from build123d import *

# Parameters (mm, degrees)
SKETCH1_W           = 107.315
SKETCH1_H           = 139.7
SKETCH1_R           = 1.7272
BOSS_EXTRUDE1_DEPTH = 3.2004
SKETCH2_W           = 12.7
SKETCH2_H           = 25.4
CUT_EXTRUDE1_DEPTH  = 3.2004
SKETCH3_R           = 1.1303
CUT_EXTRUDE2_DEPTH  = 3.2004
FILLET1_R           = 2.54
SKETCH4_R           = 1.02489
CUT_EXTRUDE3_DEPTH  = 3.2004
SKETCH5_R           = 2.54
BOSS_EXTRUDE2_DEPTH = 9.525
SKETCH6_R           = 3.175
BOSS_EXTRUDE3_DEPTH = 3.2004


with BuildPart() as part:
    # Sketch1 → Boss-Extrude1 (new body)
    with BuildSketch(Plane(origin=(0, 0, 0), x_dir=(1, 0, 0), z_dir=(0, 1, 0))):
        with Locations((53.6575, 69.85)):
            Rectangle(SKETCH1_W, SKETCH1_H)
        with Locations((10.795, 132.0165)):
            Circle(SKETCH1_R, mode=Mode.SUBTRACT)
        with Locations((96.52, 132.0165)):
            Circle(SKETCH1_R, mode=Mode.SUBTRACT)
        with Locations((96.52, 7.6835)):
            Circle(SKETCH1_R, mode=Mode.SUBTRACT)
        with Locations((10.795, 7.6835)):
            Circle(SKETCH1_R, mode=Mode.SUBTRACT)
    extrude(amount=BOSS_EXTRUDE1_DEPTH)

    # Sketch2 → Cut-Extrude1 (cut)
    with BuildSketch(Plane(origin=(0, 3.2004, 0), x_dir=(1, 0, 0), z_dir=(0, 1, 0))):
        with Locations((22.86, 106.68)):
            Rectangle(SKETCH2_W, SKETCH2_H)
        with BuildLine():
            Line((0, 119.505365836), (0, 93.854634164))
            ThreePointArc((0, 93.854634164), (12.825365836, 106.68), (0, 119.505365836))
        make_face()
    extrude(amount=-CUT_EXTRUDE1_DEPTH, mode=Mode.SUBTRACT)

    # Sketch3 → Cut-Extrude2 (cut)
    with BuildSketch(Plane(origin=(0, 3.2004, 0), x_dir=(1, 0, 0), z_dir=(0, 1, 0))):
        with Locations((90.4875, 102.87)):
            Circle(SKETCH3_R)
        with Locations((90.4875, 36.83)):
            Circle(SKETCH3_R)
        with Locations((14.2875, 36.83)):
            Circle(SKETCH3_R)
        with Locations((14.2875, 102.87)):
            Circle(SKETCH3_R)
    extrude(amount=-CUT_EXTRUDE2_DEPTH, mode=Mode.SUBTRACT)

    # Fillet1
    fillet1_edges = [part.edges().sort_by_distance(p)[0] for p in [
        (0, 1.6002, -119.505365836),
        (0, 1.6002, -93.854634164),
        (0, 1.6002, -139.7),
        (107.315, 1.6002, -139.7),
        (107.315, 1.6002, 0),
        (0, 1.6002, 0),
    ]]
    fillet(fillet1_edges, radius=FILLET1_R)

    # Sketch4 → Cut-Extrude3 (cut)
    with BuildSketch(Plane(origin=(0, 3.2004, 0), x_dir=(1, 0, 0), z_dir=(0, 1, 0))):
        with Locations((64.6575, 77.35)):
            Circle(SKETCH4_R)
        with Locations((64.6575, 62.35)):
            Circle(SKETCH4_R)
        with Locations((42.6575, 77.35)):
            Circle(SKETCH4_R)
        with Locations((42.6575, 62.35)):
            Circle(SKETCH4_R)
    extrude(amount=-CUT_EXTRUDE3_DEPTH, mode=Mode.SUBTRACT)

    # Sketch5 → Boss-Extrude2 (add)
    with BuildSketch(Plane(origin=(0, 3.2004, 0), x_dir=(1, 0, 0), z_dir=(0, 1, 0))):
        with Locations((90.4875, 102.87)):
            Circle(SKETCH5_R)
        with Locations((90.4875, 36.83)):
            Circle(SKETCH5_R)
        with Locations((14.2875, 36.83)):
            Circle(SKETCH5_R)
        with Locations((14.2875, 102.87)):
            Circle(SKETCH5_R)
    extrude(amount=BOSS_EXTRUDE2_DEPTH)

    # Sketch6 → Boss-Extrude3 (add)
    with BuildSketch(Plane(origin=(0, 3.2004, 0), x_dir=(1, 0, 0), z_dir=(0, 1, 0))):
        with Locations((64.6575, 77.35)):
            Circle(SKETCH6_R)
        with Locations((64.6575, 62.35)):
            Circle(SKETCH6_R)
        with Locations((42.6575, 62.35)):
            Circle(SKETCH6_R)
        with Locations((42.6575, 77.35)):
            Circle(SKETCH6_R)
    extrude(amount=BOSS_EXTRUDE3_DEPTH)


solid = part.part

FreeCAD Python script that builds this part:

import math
import FreeCAD as App
import Part
import Sketcher
Q = App.Units.Quantity


def edges_at(feature, points):
    """Names of the edges that pass closest to the given points."""
    edges = feature.Shape.Edges
    near = lambda p: min(range(len(edges)), key=lambda i: edges[i].distToShape(Part.Vertex(*p))[0])
    return sorted({f"Edge{near(p) + 1}" for p in points})


def add_polygon(sketch, points):
    """Adds a closed chain of lines whose ends are joined by coincident constraints."""
    first, n = sketch.GeometryCount, len(points)
    for a, b in zip(points, points[1:] + points[:1]):
        sketch.addGeometry(Part.LineSegment(App.Vector(*a, 0), App.Vector(*b, 0)), False)
    for i in range(n):
        sketch.addConstraint(Sketcher.Constraint("Coincident", first + i, 2, first + (i + 1) % n, 1))

doc = App.newDocument("Part")
body = doc.addObject("PartDesign::Body", "Body")

sketch1 = body.newObject("Sketcher::SketchObject", "Sketch")
sketch1.AttachmentSupport = (doc.getObject("XZ_Plane"), [""])
sketch1.MapMode = "FlatFace"
add_polygon(sketch1, [(0, -139.7), (0, 0), (107.3, 0), (107.3, -139.7)])
sketch1.addGeometry(Part.Circle(App.Vector(10.8, -7.7, 0), App.Vector(0, 0, 1), 1.7), False)
sketch1.addGeometry(Part.Circle(App.Vector(96.5, -7.7, 0), App.Vector(0, 0, 1), 1.7), False)
sketch1.addGeometry(Part.Circle(App.Vector(10.8, -132, 0), App.Vector(0, 0, 1), 1.7), False)
sketch1.addGeometry(Part.Circle(App.Vector(96.5, -132, 0), App.Vector(0, 0, 1), 1.7), False)
sketch1.addConstraint([
    Sketcher.Constraint("Vertical", 0),
    Sketcher.Constraint("Horizontal", 1),
    Sketcher.Constraint("Vertical", 2),
    Sketcher.Constraint("Horizontal", 3),
    Sketcher.Constraint("Coincident", 0, 2, -1, 1),
    Sketcher.Constraint("Equal", 4, 5),
    Sketcher.Constraint("Equal", 5, 6),
    Sketcher.Constraint("Equal", 6, 7),
    Sketcher.Constraint("Horizontal", 4, 3, 5, 3),
    Sketcher.Constraint("Horizontal", 6, 3, 7, 3),
    Sketcher.Constraint("Vertical", 4, 3, 6, 3),
    Sketcher.Constraint("Vertical", 5, 3, 7, 3),
    Sketcher.Constraint("Diameter", 4, Q("0.136 in")),
    Sketcher.Constraint("DistanceY", 0, 1, 0, 2, Q("5.5 in")),
    Sketcher.Constraint("DistanceX", -1, 1, 5, 3, Q("3.8 in")),
    Sketcher.Constraint("DistanceX", 4, 3, 1, 2, Q("3.8 in")),
    Sketcher.Constraint("DistanceX", 1, 1, 1, 2, Q("4.225 in")),
    Sketcher.Constraint("DistanceY", 6, 3, 4, 3, Q("4.895 in")),
    Sketcher.Constraint("DistanceY", 4, 3, -1, 1, Q("0.3025 in")),
])
pad1 = body.newObject("PartDesign::Pad", "Pad")
pad1.Profile = sketch1
pad1.Length = Q("0.126 in")
pad1.Reversed = True

sketch2 = body.newObject("Sketcher::SketchObject", "Sketch001")
sketch2.AttachmentSupport = (doc.getObject("XZ_Plane"), [""])
sketch2.MapMode = "FlatFace"
sketch2.AttachmentOffset = App.Placement(App.Vector(0, 0, -0.126 * 25.4), App.Rotation())
add_polygon(sketch2, [(17, -119), (17, -94), (29, -94), (29, -119)])
sketch2.addGeometry(Part.LineSegment(App.Vector(0, -120, 0), App.Vector(0, -94, 0)), False)
sketch2.addGeometry(Part.ArcOfCircle(Part.Circle(App.Vector(0, -107, 0), App.Vector(0, 0, 1), 13), math.radians(-90), math.radians(90)), False)
sketch2.addConstraint([
    Sketcher.Constraint("Coincident", 4, 1, 5, 1),
    Sketcher.Constraint("Coincident", 5, 2, 4, 2),
    Sketcher.Constraint("Vertical", 0),
    Sketcher.Constraint("Horizontal", 1),
    Sketcher.Constraint("Vertical", 2),
    Sketcher.Constraint("Horizontal", 3),
    Sketcher.Constraint("Vertical", 4),
    Sketcher.Constraint("PointOnObject", 5, 3, -2),
    Sketcher.Constraint("PointOnObject", 4, 1, -2),
    Sketcher.Constraint("DistanceY", 0, 1, 0, 2, Q("1 in")),
    Sketcher.Constraint("DistanceX", 1, 1, 1, 2, Q("0.5 in")),
    Sketcher.Constraint("DistanceY", 5, 3, -1, 1, Q("4.2 in")),
    Sketcher.Constraint("DistanceY", 0, 2, -1, 1, Q("3.7 in")),
    Sketcher.Constraint("DistanceX", -1, 1, 0, 2, Q("0.65 in")),
    Sketcher.Constraint("Radius", 5, 12.825366),
])
pocket1 = body.newObject("PartDesign::Pocket", "Pocket")
pocket1.Profile = sketch2
pocket1.Length = Q("0.126 in")
pocket1.Reversed = True

sketch3 = body.newObject("Sketcher::SketchObject", "Sketch002")
sketch3.AttachmentSupport = (doc.getObject("XZ_Plane"), [""])
sketch3.MapMode = "FlatFace"
sketch3.AttachmentOffset = App.Placement(App.Vector(0, 0, -0.126 * 25.4), App.Rotation())
sketch3.addGeometry([
    Part.Circle(App.Vector(90.5, -102.9, 0), App.Vector(0, 0, 1), 1.1),
    Part.Circle(App.Vector(90.5, -36.8, 0), App.Vector(0, 0, 1), 1.1),
    Part.Circle(App.Vector(14.3, -36.8, 0), App.Vector(0, 0, 1), 1.1),
    Part.Circle(App.Vector(14.3, -102.9, 0), App.Vector(0, 0, 1), 1.1),
], False)
sketch3.addConstraint([
    Sketcher.Constraint("Equal", 0, 1),
    Sketcher.Constraint("Equal", 1, 2),
    Sketcher.Constraint("Equal", 2, 3),
    Sketcher.Constraint("Horizontal", 1, 3, 2, 3),
    Sketcher.Constraint("Horizontal", 0, 3, 3, 3),
    Sketcher.Constraint("Vertical", 0, 3, 1, 3),
    Sketcher.Constraint("Vertical", 2, 3, 3, 3),
    Sketcher.Constraint("Diameter", 0, Q("0.089 in")),
    Sketcher.Constraint("DistanceX", 2, 3, 1, 3, Q("3 in")),
    Sketcher.Constraint("DistanceY", 0, 3, 1, 3, Q("2.6 in")),
    Sketcher.Constraint("DistanceY", 0, 3, -1, 1, Q("4.05 in")),
    Sketcher.Constraint("DistanceX", -1, 1, 0, 3, Q("3.5625 in")),
])
pocket2 = body.newObject("PartDesign::Pocket", "Pocket001")
pocket2.Profile = sketch3
pocket2.Length = Q("0.126 in")
pocket2.Reversed = True
doc.recompute()

fillet = body.newObject("PartDesign::Fillet", "Fillet")
fillet.Base = (pocket2, edges_at(pocket2, [
    (0, 1.6, -119.505),
    (0, 1.6, -93.855),
    (0, 1.6, -139.7),
    (107.315, 1.6, -139.7),
    (107.315, 1.6, 0),
    (0, 1.6, 0),
]))
fillet.Radius = Q("0.1 in")

sketch4 = body.newObject("Sketcher::SketchObject", "Sketch003")
sketch4.AttachmentSupport = (doc.getObject("XZ_Plane"), [""])
sketch4.MapMode = "FlatFace"
sketch4.AttachmentOffset = App.Placement(App.Vector(0, 0, -0.126 * 25.4), App.Rotation())
sketch4.addGeometry([
    Part.Circle(App.Vector(64.7, -77.3, 0), App.Vector(0, 0, 1), 1),
    Part.Circle(App.Vector(64.7, -62.4, 0), App.Vector(0, 0, 1), 1),
    Part.Circle(App.Vector(42.7, -77.3, 0), App.Vector(0, 0, 1), 1),
    Part.Circle(App.Vector(42.7, -62.4, 0), App.Vector(0, 0, 1), 1),
], False)
sketch4.addConstraint([
    Sketcher.Constraint("Equal", 0, 1),
    Sketcher.Constraint("Equal", 1, 2),
    Sketcher.Constraint("Equal", 2, 3),
    Sketcher.Constraint("Horizontal", 0, 3, 2, 3),
    Sketcher.Constraint("Horizontal", 1, 3, 3, 3),
    Sketcher.Constraint("Vertical", 0, 3, 1, 3),
    Sketcher.Constraint("Vertical", 2, 3, 3, 3),
    Sketcher.Constraint("Diameter", 0, Q("0.0807 in")),
    Sketcher.Constraint("DistanceX", -1, 1, 0, 3, 64.6575),
    Sketcher.Constraint("DistanceY", 0, 3, -1, 1, 77.35),
    Sketcher.Constraint("DistanceY", 1, 3, -1, 1, 62.35),
    Sketcher.Constraint("DistanceX", -1, 1, 2, 3, 42.6575),
])
pocket3 = body.newObject("PartDesign::Pocket", "Pocket002")
pocket3.Profile = sketch4
pocket3.Length = Q("0.126 in")
pocket3.Reversed = True

sketch5 = body.newObject("Sketcher::SketchObject", "Sketch004")
sketch5.AttachmentSupport = (doc.getObject("XZ_Plane"), [""])
sketch5.MapMode = "FlatFace"
sketch5.AttachmentOffset = App.Placement(App.Vector(0, 0, -0.126 * 25.4), App.Rotation())
sketch5.addGeometry([
    Part.Circle(App.Vector(90.5, -102.9, 0), App.Vector(0, 0, 1), 2.5),
    Part.Circle(App.Vector(90.5, -36.8, 0), App.Vector(0, 0, 1), 2.5),
    Part.Circle(App.Vector(14.3, -36.8, 0), App.Vector(0, 0, 1), 2.5),
    Part.Circle(App.Vector(14.3, -102.9, 0), App.Vector(0, 0, 1), 2.5),
], False)
sketch5.addConstraint([
    Sketcher.Constraint("Equal", 0, 1),
    Sketcher.Constraint("Equal", 1, 2),
    Sketcher.Constraint("Equal", 2, 3),
    Sketcher.Constraint("Horizontal", 1, 3, 2, 3),
    Sketcher.Constraint("Horizontal", 0, 3, 3, 3),
    Sketcher.Constraint("Vertical", 0, 3, 1, 3),
    Sketcher.Constraint("Vertical", 2, 3, 3, 3),
    Sketcher.Constraint("Diameter", 0, Q("0.2 in")),
    Sketcher.Constraint("DistanceX", 2, 3, 1, 3, Q("3 in")),
    Sketcher.Constraint("DistanceY", 0, 3, 1, 3, Q("2.6 in")),
    Sketcher.Constraint("DistanceY", 0, 3, -1, 1, Q("4.05 in")),
    Sketcher.Constraint("DistanceX", -1, 1, 0, 3, Q("3.5625 in")),
])
pad2 = body.newObject("PartDesign::Pad", "Pad001")
pad2.Profile = sketch5
pad2.Length = Q("0.375 in")
pad2.Reversed = True

sketch6 = body.newObject("Sketcher::SketchObject", "Sketch005")
sketch6.AttachmentSupport = (doc.getObject("XZ_Plane"), [""])
sketch6.MapMode = "FlatFace"
sketch6.AttachmentOffset = App.Placement(App.Vector(0, 0, -0.126 * 25.4), App.Rotation())
sketch6.addGeometry([
    Part.Circle(App.Vector(64.7, -77.3, 0), App.Vector(0, 0, 1), 3.2),
    Part.Circle(App.Vector(64.7, -62.4, 0), App.Vector(0, 0, 1), 3.2),
    Part.Circle(App.Vector(42.7, -62.4, 0), App.Vector(0, 0, 1), 3.2),
    Part.Circle(App.Vector(42.7, -77.3, 0), App.Vector(0, 0, 1), 3.2),
], False)
sketch6.addConstraint([
    Sketcher.Constraint("Equal", 0, 1),
    Sketcher.Constraint("Equal", 1, 2),
    Sketcher.Constraint("Equal", 2, 3),
    Sketcher.Constraint("Horizontal", 1, 3, 2, 3),
    Sketcher.Constraint("Horizontal", 0, 3, 3, 3),
    Sketcher.Constraint("Vertical", 0, 3, 1, 3),
    Sketcher.Constraint("Vertical", 2, 3, 3, 3),
    Sketcher.Constraint("Diameter", 0, Q("0.25 in")),
    Sketcher.Constraint("DistanceX", -1, 1, 0, 3, 64.6575),
    Sketcher.Constraint("DistanceY", 0, 3, -1, 1, 77.35),
    Sketcher.Constraint("DistanceY", 1, 3, -1, 1, 62.35),
    Sketcher.Constraint("DistanceX", -1, 1, 2, 3, 42.6575),
])
pad3 = body.newObject("PartDesign::Pad", "Pad002")
pad3.Profile = sketch6
pad3.Length = Q("0.126 in")
pad3.Reversed = True

doc.recompute()
